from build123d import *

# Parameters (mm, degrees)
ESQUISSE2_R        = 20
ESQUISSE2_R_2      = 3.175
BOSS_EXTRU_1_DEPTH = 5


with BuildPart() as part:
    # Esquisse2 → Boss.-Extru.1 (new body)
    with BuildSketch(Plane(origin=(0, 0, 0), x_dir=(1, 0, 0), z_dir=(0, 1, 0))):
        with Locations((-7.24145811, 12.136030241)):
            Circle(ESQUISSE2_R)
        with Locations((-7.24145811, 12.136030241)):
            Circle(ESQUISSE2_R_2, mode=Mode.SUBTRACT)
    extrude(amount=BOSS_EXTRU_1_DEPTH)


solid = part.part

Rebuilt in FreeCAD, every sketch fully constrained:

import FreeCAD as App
import Part
import Sketcher
from FreeCAD import Vector

doc = App.newDocument("Part")
params = doc.addObject("Spreadsheet::Sheet", "Params")
for row, (alias, value) in enumerate([
    ("sketch1_diameter", "40 mm"),
    ("sketch1_diameter2", "6.35 mm"),
    ("pad1_length", "5 mm"),
], start=1):
    params.set(f"A{row}", alias)
    params.set(f"B{row}", "=" + value)
    params.setAlias(f"B{row}", alias)

body = doc.addObject("PartDesign::Body", "Body")

sketch1 = body.newObject("Sketcher::SketchObject", "Sketch")
sketch1.AttachmentSupport = (doc.getObject("XZ_Plane"), [""])
sketch1.MapMode = "FlatFace"
sketch1.addGeometry([
    Part.Circle(Vector(-7.2, -12.1, 0), Vector(0, 0, 1), 20),
    Part.Circle(Vector(-7.2, -12.1, 0), Vector(0, 0, 1), 3.2),
], False)
sketch1.addConstraint([
    Sketcher.Constraint("Coincident", 1, 3, 0, 3),
    Sketcher.Constraint("Diameter", 0, 40.0),
    Sketcher.Constraint("Diameter", 1, 6.35),
    Sketcher.Constraint("DistanceX", 0, 3, -1, 1, 7.241458),
    Sketcher.Constraint("DistanceY", 0, 3, -1, 1, 12.13603),
])
sketch1.setExpression("Constraints[1]", "Params.sketch1_diameter")
sketch1.setExpression("Constraints[2]", "Params.sketch1_diameter2")
pad1 = body.newObject("PartDesign::Pad", "Pad")
pad1.Profile = sketch1
pad1.setExpression("Length", "Params.pad1_length")
pad1.Reversed = True

doc.recompute()
